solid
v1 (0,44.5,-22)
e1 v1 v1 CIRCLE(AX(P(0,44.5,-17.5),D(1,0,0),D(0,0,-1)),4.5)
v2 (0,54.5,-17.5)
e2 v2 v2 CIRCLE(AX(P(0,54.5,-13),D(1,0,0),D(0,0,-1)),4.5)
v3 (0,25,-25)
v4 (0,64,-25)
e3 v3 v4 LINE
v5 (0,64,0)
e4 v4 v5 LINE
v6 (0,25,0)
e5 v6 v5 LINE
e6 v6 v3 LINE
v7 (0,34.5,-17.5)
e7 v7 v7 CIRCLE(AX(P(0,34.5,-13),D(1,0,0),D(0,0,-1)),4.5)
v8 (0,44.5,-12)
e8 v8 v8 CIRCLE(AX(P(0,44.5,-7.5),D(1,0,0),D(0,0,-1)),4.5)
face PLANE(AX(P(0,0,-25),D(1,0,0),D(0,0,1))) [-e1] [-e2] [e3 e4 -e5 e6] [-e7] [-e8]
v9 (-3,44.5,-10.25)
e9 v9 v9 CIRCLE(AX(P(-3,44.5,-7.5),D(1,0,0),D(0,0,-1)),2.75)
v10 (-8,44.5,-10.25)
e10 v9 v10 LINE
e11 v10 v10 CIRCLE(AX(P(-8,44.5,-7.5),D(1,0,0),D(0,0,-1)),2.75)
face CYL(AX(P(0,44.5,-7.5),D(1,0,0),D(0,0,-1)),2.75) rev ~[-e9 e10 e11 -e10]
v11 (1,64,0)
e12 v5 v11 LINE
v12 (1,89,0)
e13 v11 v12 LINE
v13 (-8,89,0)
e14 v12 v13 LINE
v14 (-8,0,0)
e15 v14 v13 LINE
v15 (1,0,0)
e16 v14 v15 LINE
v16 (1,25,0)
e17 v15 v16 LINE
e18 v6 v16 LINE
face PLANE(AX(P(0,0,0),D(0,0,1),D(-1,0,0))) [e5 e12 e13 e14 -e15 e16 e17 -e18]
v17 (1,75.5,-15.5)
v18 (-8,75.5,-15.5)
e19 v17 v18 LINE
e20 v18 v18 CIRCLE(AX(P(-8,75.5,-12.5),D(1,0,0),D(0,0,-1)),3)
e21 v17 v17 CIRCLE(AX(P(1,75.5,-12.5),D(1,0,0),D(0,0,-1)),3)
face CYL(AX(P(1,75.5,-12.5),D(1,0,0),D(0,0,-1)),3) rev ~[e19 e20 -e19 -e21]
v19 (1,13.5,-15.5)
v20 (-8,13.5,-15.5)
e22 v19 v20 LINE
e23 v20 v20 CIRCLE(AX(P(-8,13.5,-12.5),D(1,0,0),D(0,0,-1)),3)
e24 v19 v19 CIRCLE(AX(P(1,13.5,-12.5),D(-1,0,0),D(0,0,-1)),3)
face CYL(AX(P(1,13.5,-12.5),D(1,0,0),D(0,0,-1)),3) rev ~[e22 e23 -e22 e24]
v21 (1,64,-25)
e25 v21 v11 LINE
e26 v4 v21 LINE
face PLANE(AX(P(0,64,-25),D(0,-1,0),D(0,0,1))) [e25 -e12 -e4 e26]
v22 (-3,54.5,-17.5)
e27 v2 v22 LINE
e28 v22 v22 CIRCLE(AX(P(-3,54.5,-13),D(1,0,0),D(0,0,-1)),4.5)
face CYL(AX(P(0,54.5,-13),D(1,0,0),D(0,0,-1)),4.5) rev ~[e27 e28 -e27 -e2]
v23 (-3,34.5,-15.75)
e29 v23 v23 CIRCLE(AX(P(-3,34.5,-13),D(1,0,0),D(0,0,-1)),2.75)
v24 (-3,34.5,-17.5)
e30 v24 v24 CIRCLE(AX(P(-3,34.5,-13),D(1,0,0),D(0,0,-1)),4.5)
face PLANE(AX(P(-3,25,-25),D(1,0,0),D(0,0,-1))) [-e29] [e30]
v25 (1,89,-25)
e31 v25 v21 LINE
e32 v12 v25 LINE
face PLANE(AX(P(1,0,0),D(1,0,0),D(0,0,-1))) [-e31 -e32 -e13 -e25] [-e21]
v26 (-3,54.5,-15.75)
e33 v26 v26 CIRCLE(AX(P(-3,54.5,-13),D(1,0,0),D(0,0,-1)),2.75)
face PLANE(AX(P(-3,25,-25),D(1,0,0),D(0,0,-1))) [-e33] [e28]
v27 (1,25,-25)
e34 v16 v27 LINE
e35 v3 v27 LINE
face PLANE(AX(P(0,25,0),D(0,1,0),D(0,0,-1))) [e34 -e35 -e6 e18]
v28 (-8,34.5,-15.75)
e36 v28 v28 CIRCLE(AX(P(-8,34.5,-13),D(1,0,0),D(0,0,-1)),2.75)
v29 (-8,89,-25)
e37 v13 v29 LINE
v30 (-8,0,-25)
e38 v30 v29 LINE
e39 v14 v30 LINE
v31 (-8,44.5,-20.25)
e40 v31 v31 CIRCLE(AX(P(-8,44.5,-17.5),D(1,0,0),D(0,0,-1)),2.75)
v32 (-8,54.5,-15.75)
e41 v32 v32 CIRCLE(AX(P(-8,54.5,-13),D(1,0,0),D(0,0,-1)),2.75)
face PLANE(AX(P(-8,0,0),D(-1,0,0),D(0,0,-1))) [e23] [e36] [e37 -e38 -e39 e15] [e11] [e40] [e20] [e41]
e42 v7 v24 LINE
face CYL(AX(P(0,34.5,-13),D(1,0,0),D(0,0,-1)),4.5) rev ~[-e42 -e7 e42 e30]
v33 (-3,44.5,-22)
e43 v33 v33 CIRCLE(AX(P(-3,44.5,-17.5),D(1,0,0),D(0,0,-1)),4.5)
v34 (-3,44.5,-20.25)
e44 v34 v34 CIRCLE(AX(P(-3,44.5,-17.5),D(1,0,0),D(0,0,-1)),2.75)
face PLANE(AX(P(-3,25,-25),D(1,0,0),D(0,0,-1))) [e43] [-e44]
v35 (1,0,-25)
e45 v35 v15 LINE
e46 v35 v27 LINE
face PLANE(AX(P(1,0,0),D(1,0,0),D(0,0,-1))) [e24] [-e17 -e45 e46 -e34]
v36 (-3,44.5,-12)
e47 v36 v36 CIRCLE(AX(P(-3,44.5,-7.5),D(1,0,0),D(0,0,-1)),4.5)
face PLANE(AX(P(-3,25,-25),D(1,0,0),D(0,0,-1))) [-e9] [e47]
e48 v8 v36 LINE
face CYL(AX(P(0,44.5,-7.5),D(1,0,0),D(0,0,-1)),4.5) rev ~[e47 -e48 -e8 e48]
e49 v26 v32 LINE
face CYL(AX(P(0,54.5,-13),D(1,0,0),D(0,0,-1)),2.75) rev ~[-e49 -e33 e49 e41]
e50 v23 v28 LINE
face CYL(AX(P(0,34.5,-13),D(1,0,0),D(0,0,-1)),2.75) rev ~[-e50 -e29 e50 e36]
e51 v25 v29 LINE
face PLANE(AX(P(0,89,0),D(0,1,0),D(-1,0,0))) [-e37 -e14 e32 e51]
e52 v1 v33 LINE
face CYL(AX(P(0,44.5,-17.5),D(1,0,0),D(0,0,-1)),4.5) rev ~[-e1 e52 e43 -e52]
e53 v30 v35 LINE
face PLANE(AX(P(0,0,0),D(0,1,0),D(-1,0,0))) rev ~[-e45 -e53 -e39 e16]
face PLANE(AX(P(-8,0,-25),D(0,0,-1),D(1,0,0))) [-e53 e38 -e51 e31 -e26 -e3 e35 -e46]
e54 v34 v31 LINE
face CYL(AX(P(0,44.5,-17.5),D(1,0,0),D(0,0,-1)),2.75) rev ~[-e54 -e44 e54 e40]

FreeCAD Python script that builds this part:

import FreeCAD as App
import Part
import Sketcher

V = App.Vector


def add_polygon(sketch, points):
    """Adds a closed chain of lines whose ends are joined by coincident constraints."""
    first, n = sketch.GeometryCount, len(points)
    for a, b in zip(points, points[1:] + points[:1]):
        sketch.addGeometry(Part.LineSegment(App.Vector(*a, 0), App.Vector(*b, 0)), False)
    for i in range(n):
        sketch.addConstraint(Sketcher.Constraint("Coincident", first + i, 2, first + (i + 1) % n, 1))

doc = App.newDocument("Part")
body = doc.addObject("PartDesign::Body", "Body")

sketch1 = body.newObject("Sketcher::SketchObject", "Sketch")
sketch1.AttachmentSupport = (doc.getObject("XZ_Plane"), [""])
sketch1.MapMode = "FlatFace"
add_polygon(sketch1, [(-8, 0), (0, 0), (0, -25), (-8, -25)])
sketch1.addConstraint([
    Sketcher.Constraint("Horizontal", 0),
    Sketcher.Constraint("Vertical", 1),
    Sketcher.Constraint("Horizontal", 2),
    Sketcher.Constraint("Vertical", 3),
    Sketcher.Constraint("Coincident", 0, 2, -1, 1),
    Sketcher.Constraint("DistanceX", 0, 1, 0, 2, 8.0),
    Sketcher.Constraint("DistanceY", 1, 2, 1, 1, 25.0),
])
pad1 = body.newObject("PartDesign::Pad", "Pad")
pad1.Profile = sketch1
pad1.Length = 89
pad1.Reversed = True

sketch2 = body.newObject("Sketcher::SketchObject", "Sketch001")
sketch2.AttachmentSupport = (doc.getObject("YZ_Plane"), [""])
sketch2.MapMode = "FlatFace"
add_polygon(sketch2, [(0, -25), (25, -25), (25, 0), (0, 0)])
add_polygon(sketch2, [(89, -25), (89, 0), (64, 0), (64, -25)])
sketch2.addConstraint([
    Sketcher.Constraint("Horizontal", 0),
    Sketcher.Constraint("Vertical", 1),
    Sketcher.Constraint("Horizontal", 2),
    Sketcher.Constraint("Vertical", 3),
    Sketcher.Constraint("Vertical", 4),
    Sketcher.Constraint("Horizontal", 5),
    Sketcher.Constraint("Vertical", 6),
    Sketcher.Constraint("Horizontal", 7),
    Sketcher.Constraint("Coincident", 2, 2, -1, 1),
    Sketcher.Constraint("PointOnObject", 4, 2, -1),
    Sketcher.Constraint("Horizontal", 3, 2, 6, 2),
    Sketcher.Constraint("Equal", 2, 5),
    Sketcher.Constraint("Equal", 7, 1),
    Sketcher.Constraint("DistanceX", 0, 1, 0, 2, 25.0),
    Sketcher.Constraint("DistanceX", -1, 1, 4, 2, 89.0),
])
pad2 = body.newObject("PartDesign::Pad", "Pad001")
pad2.Profile = sketch2
pad2.Length = 1

sketch3 = body.newObject("Sketcher::SketchObject", "Sketch002")
sketch3.AttachmentSupport = (doc.getObject("YZ_Plane"), [""])
sketch3.MapMode = "FlatFace"
sketch3.AttachmentOffset = App.Placement(V(0, 0, 1), App.Rotation())
sketch3.addGeometry([
    Part.Circle(V(13.5, -12.5, 0), V(0, 0, 1), 3),
    Part.Circle(V(75.5, -12.5, 0), V(0, 0, 1), 3),
], False)
sketch3.addConstraint([
    Sketcher.Constraint("Equal", 0, 1),
    Sketcher.Constraint("Horizontal", 0, 3, 1, 3),
    Sketcher.Constraint("Diameter", 0, 6.0),
    Sketcher.Constraint("DistanceX", -1, 1, 0, 3, 13.5),
    Sketcher.Constraint("DistanceY", 0, 3, -1, 1, 12.5),
    Sketcher.Constraint("DistanceX", 0, 3, 1, 3, 62.0),
])
pocket1 = body.newObject("PartDesign::Pocket", "Pocket")
pocket1.Profile = sketch3
pocket1.Length = 9

sketch4 = body.newObject("Sketcher::SketchObject", "Sketch003")
sketch4.AttachmentSupport = (doc.getObject("YZ_Plane"), [""])
sketch4.MapMode = "FlatFace"
sketch4.addGeometry([
    Part.Circle(V(44.5, -7.5, 0), V(0, 0, 1), 2.8),
    Part.Circle(V(44.5, -17.5, 0), V(0, 0, 1), 2.8),
    Part.Circle(V(34.5, -13, 0), V(0, 0, 1), 2.8),
    Part.Circle(V(54.5, -13, 0), V(0, 0, 1), 2.8),
], False)
sketch4.addConstraint([
    Sketcher.Constraint("Equal", 0, 1),
    Sketcher.Constraint("Equal", 1, 2),
    Sketcher.Constraint("Equal", 2, 3),
    Sketcher.Constraint("Horizontal", 2, 3, 3, 3),
    Sketcher.Constraint("Vertical", 0, 3, 1, 3),
    Sketcher.Constraint("Diameter", 0, 5.5),
    Sketcher.Constraint("DistanceY", 1, 3, 0, 3, 10.0),
    Sketcher.Constraint("DistanceX", 2, 3, 1, 3, 10.0),
    Sketcher.Constraint("DistanceX", 1, 3, 3, 3, 10.0),
    Sketcher.Constraint("DistanceX", -1, 1, 0, 3, 44.5),
    Sketcher.Constraint("DistanceY", 0, 3, -1, 1, 7.5),
    Sketcher.Constraint("DistanceY", 1, 3, 2, 3, 4.5),
])
pocket2 = body.newObject("PartDesign::Pocket", "Pocket001")
pocket2.Profile = sketch4
pocket2.Type = "UpToFirst"

sketch5 = body.newObject("Sketcher::SketchObject", "Sketch004")
sketch5.AttachmentSupport = (doc.getObject("YZ_Plane"), [""])
sketch5.MapMode = "FlatFace"
sketch5.addGeometry([
    Part.Circle(V(44.5, -7.5, 0), V(0, 0, 1), 4.5),
    Part.Circle(V(44.5, -7.5, 0), V(0, 0, 1), 2.8),
    Part.Circle(V(54.5, -13, 0), V(0, 0, 1), 4.5),
    Part.Circle(V(54.5, -13, 0), V(0, 0, 1), 2.8),
    Part.Circle(V(34.5, -13, 0), V(0, 0, 1), 4.5),
    Part.Circle(V(34.5, -13, 0), V(0, 0, 1), 2.8),
    Part.Circle(V(44.5, -17.5, 0), V(0, 0, 1), 4.5),
    Part.Circle(V(44.5, -17.5, 0), V(0, 0, 1), 2.8),
], False)
sketch5.addConstraint([
    Sketcher.Constraint("Coincident", 1, 3, 0, 3),
    Sketcher.Constraint("Coincident", 3, 3, 2, 3),
    Sketcher.Constraint("Coincident", 5, 3, 4, 3),
    Sketcher.Constraint("Coincident", 7, 3, 6, 3),
    Sketcher.Constraint("Equal", 0, 2),
    Sketcher.Constraint("Equal", 1, 3),
    Sketcher.Constraint("Equal", 2, 4),
    Sketcher.Constraint("Equal", 3, 5),
    Sketcher.Constraint("Equal", 4, 6),
    Sketcher.Constraint("Equal", 5, 7),
    Sketcher.Constraint("Horizontal", 3, 3, 4, 3),
    Sketcher.Constraint("Vertical", 1, 3, 6, 3),
    Sketcher.Constraint("Diameter", 0, 9.0),
    Sketcher.Constraint("Diameter", 1, 5.5),
    Sketcher.Constraint("DistanceY", 2, 3, 0, 3, 5.5),
    Sketcher.Constraint("DistanceY", 2, 3, -1, 1, 13.0),
    Sketcher.Constraint("DistanceX", 0, 3, 2, 3, 10.0),
    Sketcher.Constraint("DistanceX", 4, 3, 0, 3, 10.0),
    Sketcher.Constraint("DistanceY", 6, 3, 0, 3, 10.0),
    Sketcher.Constraint("DistanceX", -1, 1, 0, 3, 44.5),
])
pocket3 = body.newObject("PartDesign::Pocket", "Pocket002")
pocket3.Profile = sketch5
pocket3.Length = 3

doc.recompute()
